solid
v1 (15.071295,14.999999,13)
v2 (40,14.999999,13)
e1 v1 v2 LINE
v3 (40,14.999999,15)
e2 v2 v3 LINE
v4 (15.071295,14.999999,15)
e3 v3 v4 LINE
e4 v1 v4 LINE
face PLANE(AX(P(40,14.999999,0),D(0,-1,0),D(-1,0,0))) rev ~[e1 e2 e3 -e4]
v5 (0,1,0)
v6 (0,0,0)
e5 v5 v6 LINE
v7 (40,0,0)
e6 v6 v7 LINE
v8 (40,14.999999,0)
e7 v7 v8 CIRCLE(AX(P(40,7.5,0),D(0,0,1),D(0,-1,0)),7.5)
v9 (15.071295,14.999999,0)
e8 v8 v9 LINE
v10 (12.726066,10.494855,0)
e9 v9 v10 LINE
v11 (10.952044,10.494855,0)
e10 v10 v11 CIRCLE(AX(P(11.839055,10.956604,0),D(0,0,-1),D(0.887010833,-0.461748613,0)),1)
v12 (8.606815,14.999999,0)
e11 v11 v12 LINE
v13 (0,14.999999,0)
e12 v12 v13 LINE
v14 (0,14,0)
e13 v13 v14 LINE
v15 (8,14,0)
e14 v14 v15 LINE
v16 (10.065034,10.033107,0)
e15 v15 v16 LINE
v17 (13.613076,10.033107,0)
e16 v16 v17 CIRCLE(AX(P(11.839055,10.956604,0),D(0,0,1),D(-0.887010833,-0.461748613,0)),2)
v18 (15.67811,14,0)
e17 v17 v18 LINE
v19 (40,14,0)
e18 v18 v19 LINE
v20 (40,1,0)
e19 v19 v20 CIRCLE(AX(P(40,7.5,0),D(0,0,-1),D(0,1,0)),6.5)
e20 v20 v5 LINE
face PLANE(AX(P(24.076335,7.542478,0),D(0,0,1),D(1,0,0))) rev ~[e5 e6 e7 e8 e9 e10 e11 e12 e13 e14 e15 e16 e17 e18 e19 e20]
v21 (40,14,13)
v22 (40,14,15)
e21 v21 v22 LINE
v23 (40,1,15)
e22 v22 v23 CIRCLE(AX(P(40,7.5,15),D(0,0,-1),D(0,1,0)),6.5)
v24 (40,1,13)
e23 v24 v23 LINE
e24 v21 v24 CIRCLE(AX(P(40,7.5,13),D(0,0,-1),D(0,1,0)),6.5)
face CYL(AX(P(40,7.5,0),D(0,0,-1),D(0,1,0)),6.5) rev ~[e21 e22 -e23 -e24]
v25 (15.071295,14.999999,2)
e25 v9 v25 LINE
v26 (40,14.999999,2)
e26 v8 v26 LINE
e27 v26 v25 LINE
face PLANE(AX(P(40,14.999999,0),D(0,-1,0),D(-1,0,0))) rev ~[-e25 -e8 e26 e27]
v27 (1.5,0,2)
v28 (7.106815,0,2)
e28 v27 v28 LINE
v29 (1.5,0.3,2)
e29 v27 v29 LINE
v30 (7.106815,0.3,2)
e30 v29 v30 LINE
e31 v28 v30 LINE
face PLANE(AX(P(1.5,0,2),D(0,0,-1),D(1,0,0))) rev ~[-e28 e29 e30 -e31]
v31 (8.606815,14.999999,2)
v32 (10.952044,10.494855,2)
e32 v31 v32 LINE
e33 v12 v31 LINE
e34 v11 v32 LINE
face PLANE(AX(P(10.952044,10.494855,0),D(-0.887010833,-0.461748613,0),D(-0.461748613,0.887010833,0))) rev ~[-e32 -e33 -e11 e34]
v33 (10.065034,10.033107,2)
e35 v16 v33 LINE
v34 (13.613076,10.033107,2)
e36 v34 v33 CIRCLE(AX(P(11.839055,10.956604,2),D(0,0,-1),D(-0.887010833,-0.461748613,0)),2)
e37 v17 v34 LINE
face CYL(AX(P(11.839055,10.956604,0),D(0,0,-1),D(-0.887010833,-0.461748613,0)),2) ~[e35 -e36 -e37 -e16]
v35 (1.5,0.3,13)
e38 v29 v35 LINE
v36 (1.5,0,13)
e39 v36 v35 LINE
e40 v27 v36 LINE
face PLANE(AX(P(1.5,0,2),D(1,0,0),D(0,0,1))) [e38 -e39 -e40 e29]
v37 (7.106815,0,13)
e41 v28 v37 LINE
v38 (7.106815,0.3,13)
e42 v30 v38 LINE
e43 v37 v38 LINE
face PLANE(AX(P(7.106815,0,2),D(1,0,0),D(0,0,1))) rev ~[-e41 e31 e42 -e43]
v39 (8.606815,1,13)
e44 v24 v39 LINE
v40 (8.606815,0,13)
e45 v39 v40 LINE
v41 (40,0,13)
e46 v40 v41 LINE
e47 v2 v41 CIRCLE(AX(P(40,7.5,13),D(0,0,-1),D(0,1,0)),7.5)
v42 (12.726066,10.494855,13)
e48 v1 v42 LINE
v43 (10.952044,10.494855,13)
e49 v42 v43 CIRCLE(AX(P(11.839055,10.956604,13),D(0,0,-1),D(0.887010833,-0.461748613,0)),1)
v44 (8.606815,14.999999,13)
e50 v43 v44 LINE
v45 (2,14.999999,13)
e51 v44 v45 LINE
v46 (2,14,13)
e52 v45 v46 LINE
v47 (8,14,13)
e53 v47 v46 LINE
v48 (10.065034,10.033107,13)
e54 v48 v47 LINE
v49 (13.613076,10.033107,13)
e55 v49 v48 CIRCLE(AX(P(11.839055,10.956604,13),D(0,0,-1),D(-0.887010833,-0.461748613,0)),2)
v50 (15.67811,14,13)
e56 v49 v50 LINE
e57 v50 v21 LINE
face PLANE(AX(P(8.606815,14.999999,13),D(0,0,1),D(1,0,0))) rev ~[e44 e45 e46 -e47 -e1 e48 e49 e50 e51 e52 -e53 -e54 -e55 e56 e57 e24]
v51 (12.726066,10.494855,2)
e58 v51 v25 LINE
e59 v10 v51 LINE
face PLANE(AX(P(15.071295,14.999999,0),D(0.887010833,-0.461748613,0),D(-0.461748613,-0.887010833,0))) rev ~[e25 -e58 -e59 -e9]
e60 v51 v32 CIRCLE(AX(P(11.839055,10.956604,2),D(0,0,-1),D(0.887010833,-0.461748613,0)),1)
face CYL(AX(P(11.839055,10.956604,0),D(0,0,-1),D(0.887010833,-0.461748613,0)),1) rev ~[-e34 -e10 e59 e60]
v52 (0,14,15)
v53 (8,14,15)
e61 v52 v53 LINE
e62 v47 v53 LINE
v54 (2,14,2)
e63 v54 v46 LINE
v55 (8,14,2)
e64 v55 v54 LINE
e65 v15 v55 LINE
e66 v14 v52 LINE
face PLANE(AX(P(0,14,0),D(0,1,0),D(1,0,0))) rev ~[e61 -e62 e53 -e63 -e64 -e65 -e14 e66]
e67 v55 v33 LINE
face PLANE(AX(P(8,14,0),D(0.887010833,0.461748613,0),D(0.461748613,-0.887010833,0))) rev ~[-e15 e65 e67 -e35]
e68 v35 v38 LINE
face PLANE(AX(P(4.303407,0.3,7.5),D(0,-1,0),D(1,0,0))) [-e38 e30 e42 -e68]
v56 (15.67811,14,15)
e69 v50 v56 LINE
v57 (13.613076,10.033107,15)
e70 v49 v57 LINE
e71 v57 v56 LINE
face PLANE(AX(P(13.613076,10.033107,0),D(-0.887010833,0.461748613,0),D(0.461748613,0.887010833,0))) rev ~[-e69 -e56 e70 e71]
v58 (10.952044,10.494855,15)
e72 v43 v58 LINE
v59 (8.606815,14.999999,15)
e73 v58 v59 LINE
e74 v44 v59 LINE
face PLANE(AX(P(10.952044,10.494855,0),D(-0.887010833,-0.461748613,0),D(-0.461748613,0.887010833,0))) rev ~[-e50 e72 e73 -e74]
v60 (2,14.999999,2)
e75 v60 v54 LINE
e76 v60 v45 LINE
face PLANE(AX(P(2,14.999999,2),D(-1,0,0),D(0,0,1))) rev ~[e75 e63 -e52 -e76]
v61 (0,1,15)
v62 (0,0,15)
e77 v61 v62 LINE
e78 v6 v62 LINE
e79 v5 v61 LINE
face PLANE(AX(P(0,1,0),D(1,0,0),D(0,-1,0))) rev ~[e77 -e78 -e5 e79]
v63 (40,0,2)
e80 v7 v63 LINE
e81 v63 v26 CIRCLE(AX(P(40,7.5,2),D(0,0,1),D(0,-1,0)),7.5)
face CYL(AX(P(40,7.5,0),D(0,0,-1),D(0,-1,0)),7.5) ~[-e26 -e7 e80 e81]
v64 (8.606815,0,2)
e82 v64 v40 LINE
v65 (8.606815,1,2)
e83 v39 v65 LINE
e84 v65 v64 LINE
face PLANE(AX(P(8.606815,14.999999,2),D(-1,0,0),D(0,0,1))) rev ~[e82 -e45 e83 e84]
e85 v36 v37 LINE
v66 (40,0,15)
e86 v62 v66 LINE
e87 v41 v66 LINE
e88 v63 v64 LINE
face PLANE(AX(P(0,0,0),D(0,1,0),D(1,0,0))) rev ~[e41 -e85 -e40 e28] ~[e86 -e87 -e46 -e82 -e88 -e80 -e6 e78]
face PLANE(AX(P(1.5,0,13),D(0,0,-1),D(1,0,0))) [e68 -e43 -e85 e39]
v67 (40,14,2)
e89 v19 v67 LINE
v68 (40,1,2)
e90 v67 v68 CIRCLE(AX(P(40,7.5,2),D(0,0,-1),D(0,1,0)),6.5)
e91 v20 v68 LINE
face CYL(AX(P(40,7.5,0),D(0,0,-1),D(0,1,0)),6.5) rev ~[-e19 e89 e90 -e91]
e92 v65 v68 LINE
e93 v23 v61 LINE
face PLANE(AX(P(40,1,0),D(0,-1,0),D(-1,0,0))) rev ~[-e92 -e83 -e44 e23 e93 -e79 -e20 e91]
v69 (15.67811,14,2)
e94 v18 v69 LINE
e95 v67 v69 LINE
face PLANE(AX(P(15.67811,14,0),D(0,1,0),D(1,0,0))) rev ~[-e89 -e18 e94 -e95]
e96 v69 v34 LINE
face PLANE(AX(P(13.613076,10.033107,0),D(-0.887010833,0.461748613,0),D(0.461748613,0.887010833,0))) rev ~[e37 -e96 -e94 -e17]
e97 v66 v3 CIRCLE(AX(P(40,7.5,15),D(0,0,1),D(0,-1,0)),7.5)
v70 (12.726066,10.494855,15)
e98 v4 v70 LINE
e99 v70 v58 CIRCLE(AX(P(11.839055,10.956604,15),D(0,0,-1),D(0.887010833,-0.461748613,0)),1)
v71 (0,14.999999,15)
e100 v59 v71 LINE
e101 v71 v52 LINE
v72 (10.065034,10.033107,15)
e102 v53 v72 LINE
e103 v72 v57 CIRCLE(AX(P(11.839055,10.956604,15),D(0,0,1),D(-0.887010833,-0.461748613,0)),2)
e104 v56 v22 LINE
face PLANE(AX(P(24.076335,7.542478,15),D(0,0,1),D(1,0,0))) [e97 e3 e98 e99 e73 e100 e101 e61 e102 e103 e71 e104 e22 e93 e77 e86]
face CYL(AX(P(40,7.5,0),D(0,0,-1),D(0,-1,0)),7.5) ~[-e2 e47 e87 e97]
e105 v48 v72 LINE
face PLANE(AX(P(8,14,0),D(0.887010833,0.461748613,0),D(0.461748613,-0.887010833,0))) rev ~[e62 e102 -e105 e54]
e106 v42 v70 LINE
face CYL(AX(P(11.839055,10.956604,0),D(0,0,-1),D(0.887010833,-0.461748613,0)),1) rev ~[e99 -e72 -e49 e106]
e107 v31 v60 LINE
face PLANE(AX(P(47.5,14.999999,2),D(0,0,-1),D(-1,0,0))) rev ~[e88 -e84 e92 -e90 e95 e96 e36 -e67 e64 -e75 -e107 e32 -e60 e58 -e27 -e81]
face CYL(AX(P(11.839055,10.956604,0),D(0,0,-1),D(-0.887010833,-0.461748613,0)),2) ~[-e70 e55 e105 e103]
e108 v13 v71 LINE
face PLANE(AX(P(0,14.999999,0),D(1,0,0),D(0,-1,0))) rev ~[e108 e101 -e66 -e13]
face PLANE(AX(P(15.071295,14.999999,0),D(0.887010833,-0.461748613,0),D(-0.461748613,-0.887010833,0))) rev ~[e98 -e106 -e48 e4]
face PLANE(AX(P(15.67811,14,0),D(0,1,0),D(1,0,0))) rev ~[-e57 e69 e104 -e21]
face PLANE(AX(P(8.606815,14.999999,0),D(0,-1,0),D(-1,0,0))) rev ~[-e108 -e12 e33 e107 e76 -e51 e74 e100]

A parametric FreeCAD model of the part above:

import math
import FreeCAD as App
import Part
import Sketcher
Q = App.Units.Quantity


def add_polygon(sketch, points):
    """Adds a closed chain of lines whose ends are joined by coincident constraints."""
    first, n = sketch.GeometryCount, len(points)
    for a, b in zip(points, points[1:] + points[:1]):
        sketch.addGeometry(Part.LineSegment(App.Vector(*a, 0), App.Vector(*b, 0)), False)
    for i in range(n):
        sketch.addConstraint(Sketcher.Constraint("Coincident", first + i, 2, first + (i + 1) % n, 1))

doc = App.newDocument("Part")
body = doc.addObject("PartDesign::Body", "Body")

sketch1 = body.newObject("Sketcher::SketchObject", "Sketch")
sketch1.AttachmentSupport = (doc.getObject("XY_Plane"), [""])
sketch1.MapMode = "FlatFace"
sketch1.addGeometry([
    Part.LineSegment(App.Vector(0, 1, 0), App.Vector(0, 0, 0)),
    Part.LineSegment(App.Vector(0, 0, 0), App.Vector(40, 0, 0)),
    Part.ArcOfCircle(Part.Circle(App.Vector(40, 7.5, 0), App.Vector(0, 0, 1), 7.5), math.radians(-90), math.radians(90)),
    Part.LineSegment(App.Vector(40, 15, 0), App.Vector(15.1, 15, 0)),
    Part.LineSegment(App.Vector(15.1, 15, 0), App.Vector(12.7, 10.5, 0)),
    Part.ArcOfCircle(Part.Circle(App.Vector(11.8, 11, 0), App.Vector(0, 0, 1), 1), math.radians(-152), math.radians(-28)),
    Part.LineSegment(App.Vector(11, 10.5, 0), App.Vector(8.6, 15, 0)),
    Part.LineSegment(App.Vector(8.6, 15, 0), App.Vector(0, 15, 0)),
    Part.LineSegment(App.Vector(0, 15, 0), App.Vector(0, 14, 0)),
    Part.LineSegment(App.Vector(0, 14, 0), App.Vector(8, 14, 0)),
    Part.LineSegment(App.Vector(8, 14, 0), App.Vector(10.1, 10, 0)),
    Part.ArcOfCircle(Part.Circle(App.Vector(11.8, 11, 0), App.Vector(0, 0, 1), 2), math.radians(-152), math.radians(-28)),
    Part.LineSegment(App.Vector(13.6, 10, 0), App.Vector(15.7, 14, 0)),
    Part.LineSegment(App.Vector(15.7, 14, 0), App.Vector(40, 14, 0)),
    Part.ArcOfCircle(Part.Circle(App.Vector(40, 7.5, 0), App.Vector(0, 0, 1), 6.5), math.radians(-90), math.radians(90)),
    Part.LineSegment(App.Vector(40, 1, 0), App.Vector(0, 1, 0)),
], False)
sketch1.addConstraint([
    Sketcher.Constraint("Coincident", 0, 2, 1, 1),
    Sketcher.Constraint("Tangent", 1, 2, 2, 1),
    Sketcher.Constraint("Tangent", 2, 2, 3, 1),
    Sketcher.Constraint("Coincident", 3, 2, 4, 1),
    Sketcher.Constraint("Tangent", 4, 2, 5, 2),
    Sketcher.Constraint("Tangent", 5, 1, 6, 1),
    Sketcher.Constraint("Coincident", 6, 2, 7, 1),
    Sketcher.Constraint("Coincident", 7, 2, 8, 1),
    Sketcher.Constraint("Coincident", 8, 2, 9, 1),
    Sketcher.Constraint("Coincident", 9, 2, 10, 1),
    Sketcher.Constraint("Tangent", 10, 2, 11, 1),
    Sketcher.Constraint("Tangent", 11, 2, 12, 1),
    Sketcher.Constraint("Coincident", 12, 2, 13, 1),
    Sketcher.Constraint("Tangent", 13, 2, 14, 2),
    Sketcher.Constraint("Tangent", 14, 1, 15, 1),
    Sketcher.Constraint("Coincident", 15, 2, 0, 1),
    Sketcher.Constraint("Vertical", 0),
    Sketcher.Constraint("Horizontal", 1),
    Sketcher.Constraint("Horizontal", 3),
    Sketcher.Constraint("Horizontal", 7),
    Sketcher.Constraint("Vertical", 8),
    Sketcher.Constraint("Horizontal", 9),
    Sketcher.Constraint("Horizontal", 13),
    Sketcher.Constraint("Horizontal", 15),
    Sketcher.Constraint("Coincident", 0, 2, -1, 1),
    Sketcher.Constraint("Coincident", 11, 3, 5, 3),
    Sketcher.Constraint("Coincident", 14, 3, 2, 3),
    Sketcher.Constraint("PointOnObject", 7, 2, -2),
    Sketcher.Constraint("Parallel", 6, 10),
    Sketcher.Constraint("Parallel", 4, 12),
    Sketcher.Constraint("Horizontal", 4, 2, 5, 1),
    Sketcher.Constraint("Horizontal", 3, 2, 6, 2),
    Sketcher.Constraint("Horizontal", 9, 2, 12, 2),
    Sketcher.Constraint("Radius", 5, 1.0),
    Sketcher.Constraint("Radius", 11, 2.0),
    Sketcher.Constraint("Radius", 2, 7.5),
    Sketcher.Constraint("Radius", 14, 6.5),
    Sketcher.Constraint("DistanceX", 1, 1, 1, 2, 40.0),
    Sketcher.Constraint("DistanceX", 9, 1, 9, 2, 8.0),
    Sketcher.Constraint("Angle", 4, Q("-117.5 deg")),
    Sketcher.Constraint("DistanceX", 13, 1, 13, 2, 24.32189),
])
pad1 = body.newObject("PartDesign::Pad", "Pad")
pad1.Profile = sketch1
pad1.Length = 15

sketch2 = body.newObject("Sketcher::SketchObject", "Sketch001")
sketch2.AttachmentSupport = (doc.getObject("XZ_Plane"), [""])
sketch2.MapMode = "FlatFace"
sketch2.AttachmentOffset = App.Placement(App.Vector(0, 0, -14.999999), App.Rotation())
add_polygon(sketch2, [(47, 13), (47, 2), (9, 2), (9, 13)])
sketch2.addConstraint([
    Sketcher.Constraint("Vertical", 0),
    Sketcher.Constraint("Horizontal", 1),
    Sketcher.Constraint("Vertical", 2),
    Sketcher.Constraint("Horizontal", 3),
    Sketcher.Constraint("DistanceY", 0, 2, 0, 1, 11.0),
    Sketcher.Constraint("DistanceY", -1, 1, 0, 2, 2.0),
    Sketcher.Constraint("DistanceX", -1, 1, 0, 2, 47.5),
    Sketcher.Constraint("DistanceX", 1, 2, 1, 1, 38.893185),
])
pocket1 = body.newObject("PartDesign::Pocket", "Pocket")
pocket1.Profile = sketch2
pocket1.Length = 25
pocket1.Reversed = True

sketch3 = body.newObject("Sketcher::SketchObject", "Sketch002")
sketch3.AttachmentSupport = (doc.getObject("XZ_Plane"), [""])
sketch3.MapMode = "FlatFace"
sketch3.AttachmentOffset = App.Placement(App.Vector(0, 0, -14.999999), App.Rotation())
add_polygon(sketch3, [(9, 13), (9, 2), (2, 2), (2, 13)])
sketch3.addConstraint([
    Sketcher.Constraint("Vertical", 0),
    Sketcher.Constraint("Horizontal", 1),
    Sketcher.Constraint("Vertical", 2),
    Sketcher.Constraint("Horizontal", 3),
    Sketcher.Constraint("DistanceY", 0, 2, 0, 1, 11.0),
    Sketcher.Constraint("DistanceY", -1, 1, 0, 2, 2.0),
    Sketcher.Constraint("DistanceX", -1, 1, 1, 2, 2.0),
    Sketcher.Constraint("DistanceX", 1, 2, 1, 1, 6.606815),
])
pocket2 = body.newObject("PartDesign::Pocket", "Pocket001")
pocket2.Profile = sketch3
pocket2.Length = 3
pocket2.Reversed = True

sketch4 = body.newObject("Sketcher::SketchObject", "Sketch003")
sketch4.AttachmentSupport = (doc.getObject("XZ_Plane"), [""])
sketch4.MapMode = "FlatFace"
add_polygon(sketch4, [(2, 13), (2, 2), (7, 2), (7, 13)])
sketch4.addConstraint([
    Sketcher.Constraint("Vertical", 0),
    Sketcher.Constraint("Horizontal", 1),
    Sketcher.Constraint("Vertical", 2),
    Sketcher.Constraint("Horizontal", 3),
    Sketcher.Constraint("DistanceY", 0, 2, 0, 1, 11.0),
    Sketcher.Constraint("DistanceY", -1, 1, 0, 2, 2.0),
    Sketcher.Constraint("DistanceX", -1, 1, 0, 2, 1.5),
    Sketcher.Constraint("DistanceX", 1, 1, 1, 2, 5.606815),
])
pocket3 = body.newObject("PartDesign::Pocket", "Pocket002")
pocket3.Profile = sketch4
pocket3.Length = 0.3

doc.recompute()
